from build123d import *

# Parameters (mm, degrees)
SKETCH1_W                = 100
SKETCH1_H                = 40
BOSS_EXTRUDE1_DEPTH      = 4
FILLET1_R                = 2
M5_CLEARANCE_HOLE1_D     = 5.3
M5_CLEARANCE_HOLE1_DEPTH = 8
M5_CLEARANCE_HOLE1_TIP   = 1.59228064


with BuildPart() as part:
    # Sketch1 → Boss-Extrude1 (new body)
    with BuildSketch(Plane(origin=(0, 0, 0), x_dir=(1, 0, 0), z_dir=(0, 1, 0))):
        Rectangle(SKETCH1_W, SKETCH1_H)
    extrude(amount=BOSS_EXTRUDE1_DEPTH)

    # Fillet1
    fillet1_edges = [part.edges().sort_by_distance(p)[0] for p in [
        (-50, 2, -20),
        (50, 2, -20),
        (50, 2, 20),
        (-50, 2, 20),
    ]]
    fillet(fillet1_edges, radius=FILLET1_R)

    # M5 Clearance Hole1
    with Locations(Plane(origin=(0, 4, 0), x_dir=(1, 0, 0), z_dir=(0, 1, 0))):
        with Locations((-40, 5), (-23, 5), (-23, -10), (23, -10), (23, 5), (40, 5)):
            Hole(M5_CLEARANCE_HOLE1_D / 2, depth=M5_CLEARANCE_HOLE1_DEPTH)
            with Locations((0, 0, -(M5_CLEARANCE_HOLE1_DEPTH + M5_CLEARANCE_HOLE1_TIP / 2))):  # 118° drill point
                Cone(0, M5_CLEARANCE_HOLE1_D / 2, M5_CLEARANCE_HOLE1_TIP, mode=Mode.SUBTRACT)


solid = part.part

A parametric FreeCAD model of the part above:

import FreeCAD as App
import Part
import Sketcher


def edges_at(feature, points):
    """Names of the edges that pass closest to the given points."""
    edges = feature.Shape.Edges
    near = lambda p: min(range(len(edges)), key=lambda i: edges[i].distToShape(Part.Vertex(*p))[0])
    return sorted({f"Edge{near(p) + 1}" for p in points})


def add_polygon(sketch, points):
    """Adds a closed chain of lines whose ends are joined by coincident constraints."""
    first, n = sketch.GeometryCount, len(points)
    for a, b in zip(points, points[1:] + points[:1]):
        sketch.addGeometry(Part.LineSegment(App.Vector(*a, 0), App.Vector(*b, 0)), False)
    for i in range(n):
        sketch.addConstraint(Sketcher.Constraint("Coincident", first + i, 2, first + (i + 1) % n, 1))

doc = App.newDocument("Part")
body = doc.addObject("PartDesign::Body", "Body")

sketch1 = doc.addObject("Sketcher::SketchObject", "Sketch")
body.addObject(sketch1)
sketch1.AttachmentSupport = (doc.XZ_Plane, [""])
sketch1.MapMode = "FlatFace"
add_polygon(sketch1, [(-50, -20), (-50, 20), (50, 20), (50, -20)])
sketch1.addConstraint([
    Sketcher.Constraint("Vertical", 0),
    Sketcher.Constraint("Horizontal", 1),
    Sketcher.Constraint("Vertical", 2),
    Sketcher.Constraint("Horizontal", 3),
    Sketcher.Constraint("Symmetric", 0, 2, 2, 2, -1, 1),
    Sketcher.Constraint("DistanceX", 1, 1, 1, 2, 100.0),
    Sketcher.Constraint("DistanceY", 0, 1, 0, 2, 40.0),
])
pad1 = doc.addObject("PartDesign::Pad", "Pad")
body.addObject(pad1)
pad1.Profile = sketch1
pad1.Length = 4
pad1.Reversed = True
doc.recompute()

fillet = doc.addObject("PartDesign::Fillet", "Fillet")
body.addObject(fillet)
fillet.Base = (pad1, edges_at(pad1, [
    (-50, 2, -20),
    (50, 2, -20),
    (50, 2, 20),
    (-50, 2, 20),
]))
fillet.Radius = 2

sketch2 = doc.addObject("Sketcher::SketchObject", "Sketch001")
body.addObject(sketch2)
sketch2.AttachmentSupport = (doc.XZ_Plane, [""])
sketch2.MapMode = "FlatFace"
sketch2.AttachmentOffset = App.Placement(App.Vector(0, 0, -4), App.Rotation())
sketch2.addGeometry([
    Part.Circle(App.Vector(-40, -5, 0), App.Vector(0, 0, 1), 2.65),
    Part.Circle(App.Vector(-23, -5, 0), App.Vector(0, 0, 1), 2.65),
    Part.Circle(App.Vector(-23, 10, 0), App.Vector(0, 0, 1), 2.65),
    Part.Circle(App.Vector(23, 10, 0), App.Vector(0, 0, 1), 2.65),
    Part.Circle(App.Vector(23, -5, 0), App.Vector(0, 0, 1), 2.65),
    Part.Circle(App.Vector(40, -5, 0), App.Vector(0, 0, 1), 2.65),
], False)
sketch2.addConstraint([
    Sketcher.Constraint("Equal", 0, 1),
    Sketcher.Constraint("Equal", 1, 2),
    Sketcher.Constraint("Equal", 2, 3),
    Sketcher.Constraint("Equal", 3, 4),
    Sketcher.Constraint("Equal", 4, 5),
    Sketcher.Constraint("Symmetric", 2, 3, 3, 3, -2),
    Sketcher.Constraint("Symmetric", 1, 3, 4, 3, -2),
    Sketcher.Constraint("Symmetric", 0, 3, 5, 3, -2),
    Sketcher.Constraint("Horizontal", 0, 3, 1, 3),
    Sketcher.Constraint("Vertical", 1, 3, 2, 3),
    Sketcher.Constraint("Diameter", 0, 5.3),
    Sketcher.Constraint("DistanceX", 0, 3, -1, 1, 40.0),
    Sketcher.Constraint("DistanceY", 0, 3, -1, 1, 5.0),
    Sketcher.Constraint("DistanceX", 1, 3, -1, 1, 23.0),
    Sketcher.Constraint("DistanceY", -1, 1, 2, 3, 10.0),
])
doc.recompute()
hole = doc.addObject("PartDesign::Hole", "Hole")
body.addObject(hole)
hole.Profile = sketch2
hole.ThreadType = "None"
hole.Diameter = 5.3
hole.DepthType = "Dimension"
hole.Depth = 8
hole.DrillPoint = "Angled"
hole.DrillPointAngle = 118
hole.Reversed = True

doc.recompute()
